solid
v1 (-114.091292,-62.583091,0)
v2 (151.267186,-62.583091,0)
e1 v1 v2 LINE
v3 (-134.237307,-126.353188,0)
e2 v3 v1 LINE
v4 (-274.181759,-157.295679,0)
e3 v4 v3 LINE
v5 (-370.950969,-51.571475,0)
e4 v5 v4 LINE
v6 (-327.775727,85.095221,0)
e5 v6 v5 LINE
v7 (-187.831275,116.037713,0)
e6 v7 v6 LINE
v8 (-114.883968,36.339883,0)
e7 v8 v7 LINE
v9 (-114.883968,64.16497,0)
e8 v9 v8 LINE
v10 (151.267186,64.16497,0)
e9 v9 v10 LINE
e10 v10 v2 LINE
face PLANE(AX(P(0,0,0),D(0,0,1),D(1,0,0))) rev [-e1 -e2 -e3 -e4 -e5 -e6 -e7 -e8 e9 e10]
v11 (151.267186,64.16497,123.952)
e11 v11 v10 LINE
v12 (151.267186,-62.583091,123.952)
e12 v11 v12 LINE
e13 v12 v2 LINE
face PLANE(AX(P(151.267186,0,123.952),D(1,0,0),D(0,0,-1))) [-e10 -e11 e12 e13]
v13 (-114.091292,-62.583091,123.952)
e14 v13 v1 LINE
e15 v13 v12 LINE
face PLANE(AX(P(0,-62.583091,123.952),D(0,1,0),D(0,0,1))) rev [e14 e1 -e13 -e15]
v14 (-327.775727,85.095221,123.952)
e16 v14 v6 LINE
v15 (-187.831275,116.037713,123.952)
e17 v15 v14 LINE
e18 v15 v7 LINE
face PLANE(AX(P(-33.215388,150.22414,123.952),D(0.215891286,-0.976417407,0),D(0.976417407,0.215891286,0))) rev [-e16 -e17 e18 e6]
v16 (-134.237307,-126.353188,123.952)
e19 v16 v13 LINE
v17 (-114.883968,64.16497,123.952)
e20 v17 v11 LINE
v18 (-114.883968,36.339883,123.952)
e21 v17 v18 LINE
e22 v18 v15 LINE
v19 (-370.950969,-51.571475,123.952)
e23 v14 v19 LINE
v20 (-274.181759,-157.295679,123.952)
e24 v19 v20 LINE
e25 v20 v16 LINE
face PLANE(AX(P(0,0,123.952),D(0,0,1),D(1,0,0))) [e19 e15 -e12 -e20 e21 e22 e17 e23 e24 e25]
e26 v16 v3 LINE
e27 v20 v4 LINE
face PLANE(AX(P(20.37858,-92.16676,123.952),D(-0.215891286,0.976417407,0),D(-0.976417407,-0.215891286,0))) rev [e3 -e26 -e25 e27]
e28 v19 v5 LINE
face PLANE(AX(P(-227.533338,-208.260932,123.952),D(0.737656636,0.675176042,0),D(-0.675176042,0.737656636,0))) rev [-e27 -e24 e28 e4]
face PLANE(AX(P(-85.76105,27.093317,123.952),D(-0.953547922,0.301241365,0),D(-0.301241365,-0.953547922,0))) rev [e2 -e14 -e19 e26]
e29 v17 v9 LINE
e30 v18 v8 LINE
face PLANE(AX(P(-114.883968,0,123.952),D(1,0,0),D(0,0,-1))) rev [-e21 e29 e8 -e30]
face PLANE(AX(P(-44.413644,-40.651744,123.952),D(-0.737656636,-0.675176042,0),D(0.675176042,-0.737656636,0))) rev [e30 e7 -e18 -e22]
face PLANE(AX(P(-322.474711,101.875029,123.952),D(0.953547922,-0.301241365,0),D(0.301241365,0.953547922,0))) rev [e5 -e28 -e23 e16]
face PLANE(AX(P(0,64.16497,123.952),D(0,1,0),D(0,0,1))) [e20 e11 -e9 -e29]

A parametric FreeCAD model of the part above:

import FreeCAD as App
import Part
import Sketcher
Q = App.Units.Quantity

doc = App.newDocument("Part")
body = doc.addObject("PartDesign::Body", "Body")

sketch1 = body.newObject("Sketcher::SketchObject", "Sketch")
sketch1.AttachmentSupport = (doc.getObject("XY_Plane"), [""])
sketch1.MapMode = "FlatFace"
sketch1.addGeometry([
    Part.LineSegment(App.Vector(-181, 109, 0), App.Vector(-188, 116, 0)),
    Part.LineSegment(App.Vector(-188, 116, 0), App.Vector(-328, 85, 0)),
    Part.LineSegment(App.Vector(-328, 85, 0), App.Vector(-371, -52, 0)),
    Part.LineSegment(App.Vector(-371, -52, 0), App.Vector(-274, -157, 0)),
    Part.LineSegment(App.Vector(-274, -157, 0), App.Vector(-150, -130, 0)),
    Part.LineSegment(App.Vector(-150, -130, 0), App.Vector(-134, -126, 0)),
    Part.LineSegment(App.Vector(-134, -126, 0), App.Vector(-114, -63, 0)),
    Part.LineSegment(App.Vector(-114, -63, 0), App.Vector(151, -63, 0)),
    Part.LineSegment(App.Vector(151, -63, 0), App.Vector(151, 64, 0)),
    Part.LineSegment(App.Vector(151, 64, 0), App.Vector(-115, 64, 0)),
    Part.LineSegment(App.Vector(-115, 64, 0), App.Vector(-115, 36, 0)),
    Part.LineSegment(App.Vector(-115, 36, 0), App.Vector(-181, 109, 0)),
], False)
sketch1.addConstraint([
    Sketcher.Constraint("Coincident", 0, 2, 1, 1),
    Sketcher.Constraint("Coincident", 1, 2, 2, 1),
    Sketcher.Constraint("Coincident", 2, 2, 3, 1),
    Sketcher.Constraint("Coincident", 3, 2, 4, 1),
    Sketcher.Constraint("Coincident", 4, 2, 5, 1),
    Sketcher.Constraint("Coincident", 5, 2, 6, 1),
    Sketcher.Constraint("Coincident", 6, 2, 7, 1),
    Sketcher.Constraint("Coincident", 7, 2, 8, 1),
    Sketcher.Constraint("Coincident", 8, 2, 9, 1),
    Sketcher.Constraint("Coincident", 9, 2, 10, 1),
    Sketcher.Constraint("Coincident", 10, 2, 11, 1),
    Sketcher.Constraint("Coincident", 11, 2, 0, 1),
    Sketcher.Constraint("Horizontal", 7),
    Sketcher.Constraint("Vertical", 8),
    Sketcher.Constraint("Horizontal", 9),
    Sketcher.Constraint("Vertical", 10),
    Sketcher.Constraint("Parallel", 0, 3),
    Sketcher.Constraint("Parallel", 1, 4),
    Sketcher.Constraint("Parallel", 4, 5),
    Sketcher.Constraint("Parallel", 2, 6),
    Sketcher.Constraint("Parallel", 3, 11),
    Sketcher.Constraint("Equal", 1, 2),
    Sketcher.Constraint("Equal", 2, 3),
    Sketcher.Constraint("DistanceX", 7, 1, 7, 2, Q("265.358478 mm")),
    Sketcher.Constraint("DistanceY", 8, 1, 8, 2, Q("126.748061 mm")),
    Sketcher.Constraint("DistanceY", 3, 2, 1, 2, Q("242.390901 mm")),
    Sketcher.Constraint("DistanceY", 5, 2, 0, 2, Q("242.390901 mm")),
    Sketcher.Constraint("DistanceY", 1, 2, 11, 2, Q("23.9524 mm")),
    Sketcher.Constraint("Distance", 0, Q("9.476078 mm")),
    Sketcher.Constraint("Distance", 5, Q("16.288609 mm")),
    Sketcher.Constraint("Distance", 11, Q("98.56583 mm")),
    Sketcher.Constraint("DistanceX", 9, 2, 9, 1, Q("266.151154 mm")),
    Sketcher.Constraint("DistanceY", 10, 2, 10, 1, Q("27.825087 mm")),
    Sketcher.Constraint("DistanceY", -1, 1, 1, 2, Q("85.095221 mm")),
    Sketcher.Constraint("DistanceX", 2, 2, -1, 1, Q("370.950969 mm")),
    Sketcher.Constraint("DistanceX", 3, 2, -1, 1, Q("274.181759 mm")),
])
pad1 = body.newObject("PartDesign::Pad", "Pad")
pad1.Profile = sketch1
pad1.Length = Q("4.88 in")

doc.recompute()
